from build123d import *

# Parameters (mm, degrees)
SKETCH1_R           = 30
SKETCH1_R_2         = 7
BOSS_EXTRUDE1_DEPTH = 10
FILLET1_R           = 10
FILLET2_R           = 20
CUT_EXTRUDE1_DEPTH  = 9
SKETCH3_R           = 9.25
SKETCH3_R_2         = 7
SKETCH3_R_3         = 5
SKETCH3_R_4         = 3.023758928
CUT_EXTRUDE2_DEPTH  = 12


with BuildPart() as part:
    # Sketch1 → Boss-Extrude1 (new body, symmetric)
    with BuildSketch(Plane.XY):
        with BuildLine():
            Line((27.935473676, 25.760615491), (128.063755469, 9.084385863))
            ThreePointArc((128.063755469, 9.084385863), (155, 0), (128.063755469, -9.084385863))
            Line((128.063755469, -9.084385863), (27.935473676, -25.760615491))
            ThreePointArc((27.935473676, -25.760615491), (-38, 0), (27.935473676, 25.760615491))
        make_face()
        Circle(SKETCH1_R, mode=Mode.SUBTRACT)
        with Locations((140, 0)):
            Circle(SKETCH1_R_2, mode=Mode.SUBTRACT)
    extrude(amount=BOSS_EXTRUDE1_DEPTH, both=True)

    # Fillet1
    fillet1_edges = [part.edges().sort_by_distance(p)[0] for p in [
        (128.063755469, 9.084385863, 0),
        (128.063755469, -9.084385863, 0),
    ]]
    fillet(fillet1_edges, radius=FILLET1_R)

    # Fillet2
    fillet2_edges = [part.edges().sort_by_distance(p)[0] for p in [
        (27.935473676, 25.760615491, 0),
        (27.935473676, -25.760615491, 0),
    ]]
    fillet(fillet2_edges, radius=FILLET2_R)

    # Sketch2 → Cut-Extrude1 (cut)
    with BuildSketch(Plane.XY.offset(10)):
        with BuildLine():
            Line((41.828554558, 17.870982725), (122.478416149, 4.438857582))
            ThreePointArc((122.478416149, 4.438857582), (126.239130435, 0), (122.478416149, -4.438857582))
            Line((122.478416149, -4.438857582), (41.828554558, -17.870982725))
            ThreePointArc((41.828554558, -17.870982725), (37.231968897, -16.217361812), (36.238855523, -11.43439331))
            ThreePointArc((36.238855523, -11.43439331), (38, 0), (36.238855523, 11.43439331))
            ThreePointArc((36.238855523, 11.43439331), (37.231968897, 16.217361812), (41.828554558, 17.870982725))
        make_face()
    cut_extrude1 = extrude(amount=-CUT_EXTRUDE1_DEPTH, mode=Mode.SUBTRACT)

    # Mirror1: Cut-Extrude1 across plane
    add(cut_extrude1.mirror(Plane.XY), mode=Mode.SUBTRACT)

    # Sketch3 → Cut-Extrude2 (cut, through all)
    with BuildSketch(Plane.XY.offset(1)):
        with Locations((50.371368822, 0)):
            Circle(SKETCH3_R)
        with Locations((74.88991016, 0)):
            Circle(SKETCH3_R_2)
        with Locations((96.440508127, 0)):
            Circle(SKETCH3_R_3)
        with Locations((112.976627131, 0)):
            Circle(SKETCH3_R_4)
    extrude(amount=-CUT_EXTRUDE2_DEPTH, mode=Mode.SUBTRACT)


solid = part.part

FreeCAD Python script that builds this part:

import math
import FreeCAD as App
import Part
import Sketcher
from FreeCAD import Vector
Q = App.Units.Quantity


def edges_at(feature, points):
    """Names of the edges that pass closest to the given points."""
    edges = feature.Shape.Edges
    near = lambda p: min(range(len(edges)), key=lambda i: edges[i].distToShape(Part.Vertex(*p))[0])
    return sorted({f"Edge{near(p) + 1}" for p in points})

doc = App.newDocument("Part")
body = doc.addObject("PartDesign::Body", "Body")

# Sketch on XY plane
sketch1 = doc.addObject("Sketcher::SketchObject", "Sketch")
body.addObject(sketch1)
sketch1.AttachmentSupport = (doc.XY_Plane, [""])
sketch1.MapMode = "FlatFace"
sketch1.addGeometry(Part.LineSegment(Vector(128, 9, 0), Vector(28, 26, 0)), False)
sketch1.addGeometry(Part.ArcOfCircle(Part.Circle(Vector(0, 0, 0), Vector(0, 0, 1), 38), math.radians(43), math.radians(317)), False)
sketch1.addGeometry(Part.LineSegment(Vector(28, -26, 0), Vector(128, -9, 0)), False)
sketch1.addGeometry(Part.ArcOfCircle(Part.Circle(Vector(140, 0, 0), Vector(0, 0, 1), 15), math.radians(-143), math.radians(143)), False)
sketch1.addGeometry(Part.Circle(Vector(140, 0, 0), Vector(0, 0, 1), 7), False)
sketch1.addGeometry(Part.Circle(Vector(0, 0, 0), Vector(0, 0, 1), 30), False)
sketch1.addConstraint(Sketcher.Constraint("Coincident", 0, 2, 1, 1))
sketch1.addConstraint(Sketcher.Constraint("Coincident", 1, 2, 2, 1))
sketch1.addConstraint(Sketcher.Constraint("Coincident", 2, 2, 3, 1))
sketch1.addConstraint(Sketcher.Constraint("Coincident", 3, 2, 0, 1))
sketch1.addConstraint(Sketcher.Constraint("Coincident", 1, 3, -1, 1))
sketch1.addConstraint(Sketcher.Constraint("Coincident", 5, 3, -1, 1))
sketch1.addConstraint(Sketcher.Constraint("Coincident", 4, 3, 3, 3))
sketch1.addConstraint(Sketcher.Constraint("Symmetric", 2, 2, 3, 2, -1))
sketch1.addConstraint(Sketcher.Constraint("Vertical", 0, 2, 1, 2))
sketch1.addConstraint(Sketcher.Constraint("Diameter", 4, Q("14 mm")))
sketch1.addConstraint(Sketcher.Constraint("Diameter", 5, Q("60 mm")))
sketch1.addConstraint(Sketcher.Constraint("Radius", 1, Q("38 mm")))
sketch1.addConstraint(Sketcher.Constraint("Radius", 3, Q("15 mm")))
sketch1.addConstraint(Sketcher.Constraint("DistanceX", -1, 1, 3, 3, Q("140 mm")))
sketch1.addConstraint(Sketcher.Constraint("DistanceY", 2, 2, 0, 2, Q("34.845001 mm")))
sketch1.addConstraint(Sketcher.Constraint("DistanceY", 1, 2, 0, 2, Q("51.521231 mm")))
pad1 = doc.addObject("PartDesign::Pad", "Pad")
body.addObject(pad1)
pad1.Profile = sketch1
pad1.Length = 20
pad1.Midplane = True
doc.recompute()

fillet = doc.addObject("PartDesign::Fillet", "Fillet")
body.addObject(fillet)
fillet.Base = (pad1, edges_at(pad1, [(128.064, 9.084, 0), (128.064, -9.084, 0)]))
fillet.Radius = 10
doc.recompute()

fillet2 = doc.addObject("PartDesign::Fillet", "Fillet001")
body.addObject(fillet2)
fillet2.Base = (fillet, edges_at(fillet, [(27.935, 25.761, 0), (27.935, -25.761, 0)]))
fillet2.Radius = 20

# Sketch on XY plane
sketch2 = doc.addObject("Sketcher::SketchObject", "Sketch001")
body.addObject(sketch2)
sketch2.AttachmentSupport = (doc.XY_Plane, [""])
sketch2.MapMode = "FlatFace"
sketch2.AttachmentOffset = App.Placement(Vector(0, 0, 10), App.Rotation())
sketch2.addGeometry(Part.LineSegment(Vector(122.5, 4.4, 0), Vector(41.8, 17.9, 0)), False)
sketch2.addGeometry(Part.ArcOfCircle(Part.Circle(Vector(41, 12.9, 0), Vector(0, 0, 1), 5), math.radians(81), math.radians(198)), False)
sketch2.addGeometry(Part.ArcOfCircle(Part.Circle(Vector(0, 0, 0), Vector(0, 0, 1), 38), math.radians(-18), math.radians(18)), False)
sketch2.addGeometry(Part.ArcOfCircle(Part.Circle(Vector(41, -12.9, 0), Vector(0, 0, 1), 5), math.radians(162), math.radians(279)), False)
sketch2.addGeometry(Part.LineSegment(Vector(41.8, -17.9, 0), Vector(122.5, -4.4, 0)), False)
sketch2.addGeometry(Part.ArcOfCircle(Part.Circle(Vector(121.7, 0, 0), Vector(0, 0, 1), 4.5), math.radians(-81), math.radians(81)), False)
sketch2.addConstraint(Sketcher.Constraint("Tangent", 0, 2, 1, 1))
sketch2.addConstraint(Sketcher.Constraint("Tangent", 1, 2, 2, 2))
sketch2.addConstraint(Sketcher.Constraint("Tangent", 2, 1, 3, 1))
sketch2.addConstraint(Sketcher.Constraint("Tangent", 3, 2, 4, 1))
sketch2.addConstraint(Sketcher.Constraint("Tangent", 4, 2, 5, 1))
sketch2.addConstraint(Sketcher.Constraint("Tangent", 5, 2, 0, 1))
sketch2.addConstraint(Sketcher.Constraint("Coincident", 2, 3, -1, 1))
sketch2.addConstraint(Sketcher.Constraint("Equal", 1, 3))
sketch2.addConstraint(Sketcher.Constraint("Symmetric", 0, 2, 3, 2, -1))
sketch2.addConstraint(Sketcher.Constraint("Radius", 1, Q("5 mm")))
sketch2.addConstraint(Sketcher.Constraint("Radius", 2, Q("38 mm")))
sketch2.addConstraint(Sketcher.Constraint("Radius", 5, Q("4.5 mm")))
sketch2.addConstraint(Sketcher.Constraint("DistanceY", 3, 3, 0, 2, Q("30.809901 mm")))
sketch2.addConstraint(Sketcher.Constraint("DistanceX", 1, 2, 0, 2, Q("5.589699 mm")))
pocket1 = doc.addObject("PartDesign::Pocket", "Pocket")
body.addObject(pocket1)
pocket1.Profile = sketch2
pocket1.Length = 9
doc.recompute()

mirrored = doc.addObject("PartDesign::Mirrored", "Mirrored")
body.addObject(mirrored)
mirrored.Originals = [pocket1]
mirrored.MirrorPlane = (doc.XY_Plane, [""])
body.Tip = mirrored

# Sketch on XY plane
sketch3 = doc.addObject("Sketcher::SketchObject", "Sketch002")
body.addObject(sketch3)
sketch3.AttachmentSupport = (doc.XY_Plane, [""])
sketch3.MapMode = "FlatFace"
sketch3.AttachmentOffset = App.Placement(Vector(0, 0, 1), App.Rotation())
sketch3.addGeometry(Part.Circle(Vector(50.4, 0, 0), Vector(0, 0, 1), 9.2), False)
sketch3.addGeometry(Part.Circle(Vector(74.9, 0, 0), Vector(0, 0, 1), 7), False)
sketch3.addGeometry(Part.Circle(Vector(96.4, 0, 0), Vector(0, 0, 1), 5), False)
sketch3.addGeometry(Part.Circle(Vector(113, 0, 0), Vector(0, 0, 1), 3), False)
sketch3.addConstraint(Sketcher.Constraint("PointOnObject", 0, 3, -1))
sketch3.addConstraint(Sketcher.Constraint("PointOnObject", 1, 3, -1))
sketch3.addConstraint(Sketcher.Constraint("PointOnObject", 2, 3, -1))
sketch3.addConstraint(Sketcher.Constraint("PointOnObject", 3, 3, -1))
sketch3.addConstraint(Sketcher.Constraint("Diameter", 1, Q("14 mm")))
sketch3.addConstraint(Sketcher.Constraint("Diameter", 2, Q("10 mm")))
sketch3.addConstraint(Sketcher.Constraint("Diameter", 0, Q("18.5 mm")))
sketch3.addConstraint(Sketcher.Constraint("Diameter", 3, Q("6.047518 mm")))
sketch3.addConstraint(Sketcher.Constraint("DistanceX", -1, 1, 0, 3, Q("50.371369 mm")))
sketch3.addConstraint(Sketcher.Constraint("DistanceX", -1, 1, 1, 3, Q("74.88991 mm")))
sketch3.addConstraint(Sketcher.Constraint("DistanceX", -1, 1, 2, 3, Q("96.440508 mm")))
sketch3.addConstraint(Sketcher.Constraint("DistanceX", 2, 3, 3, 3, Q("16.536119 mm")))
pocket2 = doc.addObject("PartDesign::Pocket", "Pocket001")
body.addObject(pocket2)
pocket2.Profile = sketch3
pocket2.Type = "ThroughAll"

doc.recompute()
